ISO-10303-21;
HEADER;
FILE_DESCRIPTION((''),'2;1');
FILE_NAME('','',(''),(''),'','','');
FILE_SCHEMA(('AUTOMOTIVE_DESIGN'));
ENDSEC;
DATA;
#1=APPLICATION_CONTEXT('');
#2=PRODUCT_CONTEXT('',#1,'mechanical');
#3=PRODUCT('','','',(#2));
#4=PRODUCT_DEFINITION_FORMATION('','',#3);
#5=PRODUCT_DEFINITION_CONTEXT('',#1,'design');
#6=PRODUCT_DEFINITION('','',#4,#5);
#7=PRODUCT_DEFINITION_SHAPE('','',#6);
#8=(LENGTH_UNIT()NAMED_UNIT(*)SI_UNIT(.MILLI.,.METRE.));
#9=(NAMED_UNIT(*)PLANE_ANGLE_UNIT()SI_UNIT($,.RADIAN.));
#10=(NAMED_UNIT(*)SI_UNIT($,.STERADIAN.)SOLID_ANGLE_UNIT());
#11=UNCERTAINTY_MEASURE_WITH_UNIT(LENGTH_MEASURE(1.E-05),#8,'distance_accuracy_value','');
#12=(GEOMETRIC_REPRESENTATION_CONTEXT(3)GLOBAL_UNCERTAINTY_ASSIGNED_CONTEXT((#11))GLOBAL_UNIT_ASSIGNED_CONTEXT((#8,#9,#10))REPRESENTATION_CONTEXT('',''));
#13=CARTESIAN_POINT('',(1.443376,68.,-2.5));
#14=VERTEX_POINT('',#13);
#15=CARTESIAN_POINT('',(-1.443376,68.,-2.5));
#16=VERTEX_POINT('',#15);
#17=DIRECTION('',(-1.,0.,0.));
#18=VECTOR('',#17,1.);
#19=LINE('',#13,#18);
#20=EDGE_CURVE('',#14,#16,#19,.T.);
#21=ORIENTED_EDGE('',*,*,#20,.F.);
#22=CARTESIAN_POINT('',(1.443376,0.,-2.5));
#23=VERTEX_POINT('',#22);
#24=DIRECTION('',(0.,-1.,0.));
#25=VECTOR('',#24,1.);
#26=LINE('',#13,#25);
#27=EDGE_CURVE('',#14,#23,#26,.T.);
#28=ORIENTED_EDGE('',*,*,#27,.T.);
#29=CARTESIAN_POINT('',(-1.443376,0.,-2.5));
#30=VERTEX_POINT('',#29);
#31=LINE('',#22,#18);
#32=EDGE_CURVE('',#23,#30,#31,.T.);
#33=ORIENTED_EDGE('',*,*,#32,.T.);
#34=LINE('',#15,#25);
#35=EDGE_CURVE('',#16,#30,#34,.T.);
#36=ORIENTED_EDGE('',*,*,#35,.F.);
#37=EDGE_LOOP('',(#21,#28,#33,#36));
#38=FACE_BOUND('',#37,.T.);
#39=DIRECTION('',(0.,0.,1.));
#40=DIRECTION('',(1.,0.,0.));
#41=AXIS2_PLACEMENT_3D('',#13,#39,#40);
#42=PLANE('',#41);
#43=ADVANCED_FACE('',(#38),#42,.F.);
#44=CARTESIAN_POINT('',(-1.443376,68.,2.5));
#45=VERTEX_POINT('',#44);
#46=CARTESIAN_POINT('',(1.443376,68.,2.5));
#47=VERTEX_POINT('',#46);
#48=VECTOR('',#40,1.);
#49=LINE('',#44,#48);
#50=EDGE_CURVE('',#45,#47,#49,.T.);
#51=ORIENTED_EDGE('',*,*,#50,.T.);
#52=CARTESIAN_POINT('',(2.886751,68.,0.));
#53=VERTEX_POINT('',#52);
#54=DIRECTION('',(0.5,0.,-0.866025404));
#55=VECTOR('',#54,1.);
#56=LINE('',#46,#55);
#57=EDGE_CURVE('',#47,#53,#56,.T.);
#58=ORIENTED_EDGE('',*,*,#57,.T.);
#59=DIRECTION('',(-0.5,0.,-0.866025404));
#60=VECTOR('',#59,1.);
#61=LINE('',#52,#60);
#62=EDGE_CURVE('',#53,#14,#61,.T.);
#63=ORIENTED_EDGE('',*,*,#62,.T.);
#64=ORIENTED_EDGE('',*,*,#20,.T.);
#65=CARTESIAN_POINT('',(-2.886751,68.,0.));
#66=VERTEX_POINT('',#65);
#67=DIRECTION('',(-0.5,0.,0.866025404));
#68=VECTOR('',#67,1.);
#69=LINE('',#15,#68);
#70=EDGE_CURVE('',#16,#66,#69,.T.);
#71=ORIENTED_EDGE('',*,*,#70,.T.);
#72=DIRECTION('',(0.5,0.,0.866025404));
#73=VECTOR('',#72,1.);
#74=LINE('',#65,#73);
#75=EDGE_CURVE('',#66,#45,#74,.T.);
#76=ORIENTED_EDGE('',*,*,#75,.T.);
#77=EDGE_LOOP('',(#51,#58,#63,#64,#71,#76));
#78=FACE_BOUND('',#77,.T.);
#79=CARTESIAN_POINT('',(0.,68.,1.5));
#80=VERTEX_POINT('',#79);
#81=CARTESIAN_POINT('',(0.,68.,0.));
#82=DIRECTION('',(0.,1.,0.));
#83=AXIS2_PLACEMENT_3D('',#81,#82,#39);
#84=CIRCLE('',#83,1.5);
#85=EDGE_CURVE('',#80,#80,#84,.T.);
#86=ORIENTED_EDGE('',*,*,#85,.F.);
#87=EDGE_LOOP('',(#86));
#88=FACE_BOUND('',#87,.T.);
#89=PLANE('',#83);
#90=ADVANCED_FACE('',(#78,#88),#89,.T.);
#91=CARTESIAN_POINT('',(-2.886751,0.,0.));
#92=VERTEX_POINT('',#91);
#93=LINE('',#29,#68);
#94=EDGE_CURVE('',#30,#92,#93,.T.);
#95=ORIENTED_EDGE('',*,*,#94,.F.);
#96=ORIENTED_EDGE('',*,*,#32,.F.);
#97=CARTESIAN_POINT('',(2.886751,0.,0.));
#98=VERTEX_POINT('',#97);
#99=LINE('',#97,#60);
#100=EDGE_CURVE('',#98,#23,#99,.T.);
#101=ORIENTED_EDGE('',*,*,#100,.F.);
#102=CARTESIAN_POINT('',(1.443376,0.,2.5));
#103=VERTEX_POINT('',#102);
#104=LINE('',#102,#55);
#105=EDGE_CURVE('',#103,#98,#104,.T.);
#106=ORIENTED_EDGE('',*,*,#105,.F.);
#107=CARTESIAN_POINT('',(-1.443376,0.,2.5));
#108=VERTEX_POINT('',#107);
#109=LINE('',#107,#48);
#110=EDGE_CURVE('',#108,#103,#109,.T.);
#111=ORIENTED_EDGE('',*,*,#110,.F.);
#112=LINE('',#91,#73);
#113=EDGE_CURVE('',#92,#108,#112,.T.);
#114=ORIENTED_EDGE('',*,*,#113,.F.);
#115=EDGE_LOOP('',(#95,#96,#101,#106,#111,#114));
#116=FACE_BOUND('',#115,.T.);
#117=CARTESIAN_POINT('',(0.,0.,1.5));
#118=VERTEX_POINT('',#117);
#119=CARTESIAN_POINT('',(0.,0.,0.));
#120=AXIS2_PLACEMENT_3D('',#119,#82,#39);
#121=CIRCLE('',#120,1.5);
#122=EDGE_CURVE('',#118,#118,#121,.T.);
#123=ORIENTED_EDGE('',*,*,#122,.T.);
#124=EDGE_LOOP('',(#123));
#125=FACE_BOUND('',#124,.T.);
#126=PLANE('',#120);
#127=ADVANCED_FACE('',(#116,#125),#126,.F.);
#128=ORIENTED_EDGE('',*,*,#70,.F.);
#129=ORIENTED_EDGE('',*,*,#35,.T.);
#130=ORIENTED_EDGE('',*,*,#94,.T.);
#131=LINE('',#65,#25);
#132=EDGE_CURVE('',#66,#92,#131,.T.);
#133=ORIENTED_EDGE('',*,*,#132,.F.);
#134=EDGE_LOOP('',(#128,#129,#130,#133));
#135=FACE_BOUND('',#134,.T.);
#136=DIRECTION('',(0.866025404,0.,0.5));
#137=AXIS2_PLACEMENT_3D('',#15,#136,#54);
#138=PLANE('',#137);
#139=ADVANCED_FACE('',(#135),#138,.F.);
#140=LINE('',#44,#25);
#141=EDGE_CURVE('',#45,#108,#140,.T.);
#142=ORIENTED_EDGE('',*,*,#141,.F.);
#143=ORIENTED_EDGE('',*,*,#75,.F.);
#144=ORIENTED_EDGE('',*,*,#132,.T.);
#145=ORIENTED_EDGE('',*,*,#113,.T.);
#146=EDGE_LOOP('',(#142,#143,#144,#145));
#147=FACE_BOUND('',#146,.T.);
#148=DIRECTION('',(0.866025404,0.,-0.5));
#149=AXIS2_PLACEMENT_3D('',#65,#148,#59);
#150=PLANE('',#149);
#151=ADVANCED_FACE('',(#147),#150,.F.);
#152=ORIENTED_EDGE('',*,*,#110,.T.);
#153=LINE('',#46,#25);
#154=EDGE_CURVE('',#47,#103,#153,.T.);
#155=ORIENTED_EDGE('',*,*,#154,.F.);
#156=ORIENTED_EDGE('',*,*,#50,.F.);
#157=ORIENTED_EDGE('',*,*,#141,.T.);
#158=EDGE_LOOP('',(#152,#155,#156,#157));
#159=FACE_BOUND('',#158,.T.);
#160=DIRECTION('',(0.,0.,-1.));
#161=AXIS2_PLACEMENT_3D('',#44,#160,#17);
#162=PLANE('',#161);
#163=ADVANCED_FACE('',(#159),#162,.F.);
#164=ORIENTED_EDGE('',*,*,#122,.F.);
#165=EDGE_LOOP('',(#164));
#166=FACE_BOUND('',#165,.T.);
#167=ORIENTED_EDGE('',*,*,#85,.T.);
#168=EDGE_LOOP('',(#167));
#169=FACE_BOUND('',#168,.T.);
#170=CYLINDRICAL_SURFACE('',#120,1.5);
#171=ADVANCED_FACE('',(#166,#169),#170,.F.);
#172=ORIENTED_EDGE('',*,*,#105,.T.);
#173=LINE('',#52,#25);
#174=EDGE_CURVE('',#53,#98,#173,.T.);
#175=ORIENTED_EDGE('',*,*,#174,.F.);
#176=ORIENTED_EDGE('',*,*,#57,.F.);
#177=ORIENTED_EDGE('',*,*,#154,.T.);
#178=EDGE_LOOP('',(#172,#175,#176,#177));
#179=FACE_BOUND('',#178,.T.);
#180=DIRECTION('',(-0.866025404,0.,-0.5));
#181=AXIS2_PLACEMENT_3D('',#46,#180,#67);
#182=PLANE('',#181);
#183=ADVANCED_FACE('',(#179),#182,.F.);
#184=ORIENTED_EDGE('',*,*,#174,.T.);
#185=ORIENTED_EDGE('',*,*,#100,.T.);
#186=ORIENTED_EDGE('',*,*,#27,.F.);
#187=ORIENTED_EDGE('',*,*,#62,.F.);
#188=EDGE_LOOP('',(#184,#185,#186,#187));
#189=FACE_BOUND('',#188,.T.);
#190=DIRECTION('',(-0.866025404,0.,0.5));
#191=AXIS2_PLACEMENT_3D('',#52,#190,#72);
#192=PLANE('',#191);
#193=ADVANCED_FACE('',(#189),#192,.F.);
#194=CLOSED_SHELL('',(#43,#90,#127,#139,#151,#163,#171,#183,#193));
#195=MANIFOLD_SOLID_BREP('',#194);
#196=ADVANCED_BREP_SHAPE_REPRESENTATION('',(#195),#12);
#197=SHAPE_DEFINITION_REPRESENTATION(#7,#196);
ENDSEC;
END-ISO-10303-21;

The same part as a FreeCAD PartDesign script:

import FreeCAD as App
import Part
import Sketcher
Q = App.Units.Quantity

doc = App.newDocument("Part")
body = doc.addObject("PartDesign::Body", "Body")

# Sketch on XZ plane
sketch1 = doc.addObject("Sketcher::SketchObject", "Sketch")
body.addObject(sketch1)
sketch1.AttachmentSupport = (doc.XZ_Plane, [""])
sketch1.MapMode = "FlatFace"
sketch1.addGeometry([
    Part.LineSegment(App.Vector(2.9, 0, 0), App.Vector(1.4, -2.5, 0)),  # 0
    Part.LineSegment(App.Vector(1.4, -2.5, 0), App.Vector(-1.4, -2.5, 0)),  # 1
    Part.LineSegment(App.Vector(-1.4, -2.5, 0), App.Vector(-2.9, 0, 0)),  # 2
    Part.LineSegment(App.Vector(-2.9, 0, 0), App.Vector(-1.4, 2.5, 0)),  # 3
    Part.LineSegment(App.Vector(-1.4, 2.5, 0), App.Vector(1.4, 2.5, 0)),  # 4
    Part.LineSegment(App.Vector(1.4, 2.5, 0), App.Vector(2.9, 0, 0)),  # 5
], False)
sketch1.addConstraint([
    Sketcher.Constraint("Coincident", 0, 2, 1, 1),
    Sketcher.Constraint("Coincident", 1, 2, 2, 1),
    Sketcher.Constraint("Coincident", 2, 2, 3, 1),
    Sketcher.Constraint("Coincident", 3, 2, 4, 1),
    Sketcher.Constraint("Coincident", 4, 2, 5, 1),
    Sketcher.Constraint("Coincident", 5, 2, 0, 1),
    Sketcher.Constraint("Horizontal", 1),
    Sketcher.Constraint("Horizontal", 4),
    Sketcher.Constraint("Symmetric", 0, 2, 3, 2, -1, 1),
    Sketcher.Constraint("Symmetric", 2, 2, 5, 2, -1, 1),
    Sketcher.Constraint("PointOnObject", 2, 2, -1),
    Sketcher.Constraint("Parallel", 2, 5),
    Sketcher.Constraint("Vertical", 1, 2, 3, 2),
    Sketcher.Constraint("Angle", 0, Q("-120 deg")),
    Sketcher.Constraint("DistanceY", 1, 2, 3, 2, Q("5 mm")),
    Sketcher.Constraint("DistanceX", 1, 2, 1, 1, Q("2.886751 mm")),
])
pad1 = doc.addObject("PartDesign::Pad", "Pad")
body.addObject(pad1)
pad1.Profile = sketch1
pad1.Length = 68
pad1.Reversed = True

# Sketch on XZ plane
sketch2 = doc.addObject("Sketcher::SketchObject", "Sketch001")
body.addObject(sketch2)
sketch2.AttachmentSupport = (doc.XZ_Plane, [""])
sketch2.MapMode = "FlatFace"
sketch2.AttachmentOffset = App.Placement(App.Vector(0, 0, -68), App.Rotation())
sketch2.addGeometry(Part.Circle(App.Vector(0, 0, 0), App.Vector(0, 0, 1), 1.5), False)
sketch2.addConstraint([
    Sketcher.Constraint("Coincident", 0, 3, -1, 1),
    Sketcher.Constraint("Diameter", 0, Q("3 mm")),
])
pocket1 = doc.addObject("PartDesign::Pocket", "Pocket")
body.addObject(pocket1)
pocket1.Profile = sketch2
pocket1.Type = "ThroughAll"
pocket1.Reversed = True

doc.recompute()
